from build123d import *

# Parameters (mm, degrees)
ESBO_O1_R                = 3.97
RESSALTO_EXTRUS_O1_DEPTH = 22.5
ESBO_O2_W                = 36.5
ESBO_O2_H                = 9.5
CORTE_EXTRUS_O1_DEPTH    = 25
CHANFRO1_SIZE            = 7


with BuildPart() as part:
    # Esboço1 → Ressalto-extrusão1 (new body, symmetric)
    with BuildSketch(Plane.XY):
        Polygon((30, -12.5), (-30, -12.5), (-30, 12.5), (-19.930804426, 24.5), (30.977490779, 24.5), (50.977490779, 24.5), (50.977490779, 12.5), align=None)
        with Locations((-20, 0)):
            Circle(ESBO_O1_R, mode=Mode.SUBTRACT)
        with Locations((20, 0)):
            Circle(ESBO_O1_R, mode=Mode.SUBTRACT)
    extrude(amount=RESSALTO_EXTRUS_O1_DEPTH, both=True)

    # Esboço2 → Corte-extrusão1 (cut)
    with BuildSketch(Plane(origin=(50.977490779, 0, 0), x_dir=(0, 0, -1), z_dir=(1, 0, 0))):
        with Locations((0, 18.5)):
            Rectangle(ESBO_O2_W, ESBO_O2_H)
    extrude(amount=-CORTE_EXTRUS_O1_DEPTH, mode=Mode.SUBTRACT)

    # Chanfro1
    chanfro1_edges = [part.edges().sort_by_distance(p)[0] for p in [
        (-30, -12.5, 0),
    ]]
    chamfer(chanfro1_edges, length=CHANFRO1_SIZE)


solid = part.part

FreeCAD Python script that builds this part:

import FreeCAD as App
import Part
import Sketcher

V = App.Vector
Q = App.Units.Quantity


def edges_at(feature, points):
    """Names of the edges that pass closest to the given points."""
    edges = feature.Shape.Edges
    near = lambda p: min(range(len(edges)), key=lambda i: edges[i].distToShape(Part.Vertex(*p))[0])
    return sorted({f"Edge{near(p) + 1}" for p in points})

doc = App.newDocument("Part")
body = doc.addObject("PartDesign::Body", "Body")

sketch1 = body.newObject("Sketcher::SketchObject", "Sketch")
sketch1.AttachmentSupport = (doc.getObject("XY_Plane"), [""])
sketch1.MapMode = "FlatFace"
sketch1.addGeometry(Part.LineSegment(V(-30, -12.5, 0), V(30, -12.5, 0)), False)
sketch1.addGeometry(Part.LineSegment(V(30, -12.5, 0), V(51, 12.5, 0)), False)
sketch1.addGeometry(Part.LineSegment(V(51, 12.5, 0), V(51, 24.5, 0)), False)
sketch1.addGeometry(Part.LineSegment(V(51, 24.5, 0), V(-19.9, 24.5, 0)), False)
sketch1.addGeometry(Part.LineSegment(V(-19.9, 24.5, 0), V(-30, 12.5, 0)), False)
sketch1.addGeometry(Part.LineSegment(V(-30, 12.5, 0), V(-30, -12.5, 0)), False)
sketch1.addGeometry(Part.Circle(V(20, 0, 0), V(0, 0, 1), 4), False)
sketch1.addGeometry(Part.Circle(V(-20, 0, 0), V(0, 0, 1), 4), False)
sketch1.addConstraint(Sketcher.Constraint("Coincident", 0, 2, 1, 1))
sketch1.addConstraint(Sketcher.Constraint("Coincident", 1, 2, 2, 1))
sketch1.addConstraint(Sketcher.Constraint("Coincident", 2, 2, 3, 1))
sketch1.addConstraint(Sketcher.Constraint("Coincident", 3, 2, 4, 1))
sketch1.addConstraint(Sketcher.Constraint("Coincident", 4, 2, 5, 1))
sketch1.addConstraint(Sketcher.Constraint("Coincident", 5, 2, 0, 1))
sketch1.addConstraint(Sketcher.Constraint("Horizontal", 0))
sketch1.addConstraint(Sketcher.Constraint("Vertical", 2))
sketch1.addConstraint(Sketcher.Constraint("Horizontal", 3))
sketch1.addConstraint(Sketcher.Constraint("Vertical", 5))
sketch1.addConstraint(Sketcher.Constraint("Equal", 6, 7))
sketch1.addConstraint(Sketcher.Constraint("Symmetric", 6, 3, 7, 3, -1, 1))
sketch1.addConstraint(Sketcher.Constraint("Symmetric", 0, 2, 4, 2, -1, 1))
sketch1.addConstraint(Sketcher.Constraint("PointOnObject", 6, 3, -1))
sketch1.addConstraint(Sketcher.Constraint("Parallel", 1, 4))
sketch1.addConstraint(Sketcher.Constraint("Horizontal", 1, 2, 4, 2))
sketch1.addConstraint(Sketcher.Constraint("Diameter", 6, Q("7.94 mm")))
sketch1.addConstraint(Sketcher.Constraint("DistanceX", 0, 1, 0, 2, Q("60 mm")))
sketch1.addConstraint(Sketcher.Constraint("DistanceY", 2, 1, 2, 2, Q("12 mm")))
sketch1.addConstraint(Sketcher.Constraint("DistanceY", 5, 2, 5, 1, Q("25 mm")))
sketch1.addConstraint(Sketcher.Constraint("Angle", 1, Q("50 deg")))
sketch1.addConstraint(Sketcher.Constraint("DistanceX", -1, 1, 6, 3, Q("20 mm")))
pad1 = body.newObject("PartDesign::Pad", "Pad")
pad1.Profile = sketch1
pad1.Length = 45
pad1.Midplane = True

sketch2 = body.newObject("Sketcher::SketchObject", "Sketch001")
sketch2.AttachmentSupport = (doc.getObject("YZ_Plane"), [""])
sketch2.MapMode = "FlatFace"
sketch2.AttachmentOffset = App.Placement(V(0, 0, 50.977491), App.Rotation())
sketch2.addGeometry(Part.LineSegment(V(23, 18, 0), V(14, 18, 0)), False)
sketch2.addGeometry(Part.LineSegment(V(14, 18, 0), V(14, -18, 0)), False)
sketch2.addGeometry(Part.LineSegment(V(14, -18, 0), V(23, -18, 0)), False)
sketch2.addGeometry(Part.LineSegment(V(23, -18, 0), V(23, 18, 0)), False)
sketch2.addConstraint(Sketcher.Constraint("Coincident", 0, 2, 1, 1))
sketch2.addConstraint(Sketcher.Constraint("Coincident", 1, 2, 2, 1))
sketch2.addConstraint(Sketcher.Constraint("Coincident", 2, 2, 3, 1))
sketch2.addConstraint(Sketcher.Constraint("Coincident", 3, 2, 0, 1))
sketch2.addConstraint(Sketcher.Constraint("Horizontal", 0))
sketch2.addConstraint(Sketcher.Constraint("Vertical", 1))
sketch2.addConstraint(Sketcher.Constraint("Horizontal", 2))
sketch2.addConstraint(Sketcher.Constraint("Vertical", 3))
sketch2.addConstraint(Sketcher.Constraint("DistanceX", 0, 2, 0, 1, Q("9.5 mm")))
sketch2.addConstraint(Sketcher.Constraint("DistanceY", 1, 2, 1, 1, Q("36.5 mm")))
sketch2.addConstraint(Sketcher.Constraint("DistanceX", -1, 1, 0, 2, Q("13.75 mm")))
sketch2.addConstraint(Sketcher.Constraint("DistanceY", -1, 1, 0, 2, Q("18.25 mm")))
pocket1 = body.newObject("PartDesign::Pocket", "Pocket")
pocket1.Profile = sketch2
pocket1.Length = 25
doc.recompute()

chamfer = body.newObject("PartDesign::Chamfer", "Chamfer")
chamfer.Base = (pocket1, edges_at(pocket1, [(-30, -12.5, 0)]))
chamfer.Size = 7

doc.recompute()
